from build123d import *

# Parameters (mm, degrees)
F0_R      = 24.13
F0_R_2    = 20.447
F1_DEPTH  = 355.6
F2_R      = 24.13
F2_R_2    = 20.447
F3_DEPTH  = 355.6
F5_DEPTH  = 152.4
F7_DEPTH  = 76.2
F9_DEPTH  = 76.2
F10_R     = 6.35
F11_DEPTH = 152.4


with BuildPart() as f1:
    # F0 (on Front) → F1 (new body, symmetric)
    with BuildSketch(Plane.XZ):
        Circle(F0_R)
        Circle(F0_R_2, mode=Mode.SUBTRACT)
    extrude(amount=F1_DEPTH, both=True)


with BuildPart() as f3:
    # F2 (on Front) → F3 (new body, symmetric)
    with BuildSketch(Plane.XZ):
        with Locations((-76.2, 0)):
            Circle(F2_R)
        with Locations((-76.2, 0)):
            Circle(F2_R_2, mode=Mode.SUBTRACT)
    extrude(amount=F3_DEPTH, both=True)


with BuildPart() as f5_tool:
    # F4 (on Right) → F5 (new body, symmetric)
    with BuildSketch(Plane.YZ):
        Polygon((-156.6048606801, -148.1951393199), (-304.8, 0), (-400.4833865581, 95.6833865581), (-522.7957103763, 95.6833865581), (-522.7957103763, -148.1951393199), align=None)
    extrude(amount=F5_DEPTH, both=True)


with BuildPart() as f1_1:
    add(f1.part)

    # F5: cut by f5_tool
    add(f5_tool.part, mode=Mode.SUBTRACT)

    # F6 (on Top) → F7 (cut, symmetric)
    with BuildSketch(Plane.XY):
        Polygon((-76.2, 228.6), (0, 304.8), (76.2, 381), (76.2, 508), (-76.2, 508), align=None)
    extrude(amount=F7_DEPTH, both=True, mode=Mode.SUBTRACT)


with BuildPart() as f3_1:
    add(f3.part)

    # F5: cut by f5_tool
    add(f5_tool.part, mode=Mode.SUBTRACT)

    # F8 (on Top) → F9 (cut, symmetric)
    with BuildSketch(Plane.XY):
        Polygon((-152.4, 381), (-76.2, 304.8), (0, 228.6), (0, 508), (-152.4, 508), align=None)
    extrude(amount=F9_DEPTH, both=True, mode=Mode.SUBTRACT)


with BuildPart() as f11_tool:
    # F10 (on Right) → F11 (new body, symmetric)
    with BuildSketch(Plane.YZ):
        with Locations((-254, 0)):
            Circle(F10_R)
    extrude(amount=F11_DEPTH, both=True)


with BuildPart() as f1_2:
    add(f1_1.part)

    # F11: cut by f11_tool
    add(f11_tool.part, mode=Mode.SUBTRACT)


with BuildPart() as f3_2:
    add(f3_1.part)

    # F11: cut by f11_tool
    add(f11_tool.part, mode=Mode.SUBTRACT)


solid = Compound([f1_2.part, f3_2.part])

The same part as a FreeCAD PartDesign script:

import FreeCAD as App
import Part
import Sketcher
Q = App.Units.Quantity

doc = App.newDocument("Part")
params = doc.addObject("Spreadsheet::Sheet", "Params")
for row, (alias, value) in enumerate([
    ("sketch1_diameter", "1.9 in"),
    ("sketch1_diameter2", "1.61 in"),
    ("pad1_length", "28 in"),
    ("sketch2_diameter", "1.9 in"),
    ("sketch2_diameter2", "1.61 in"),
    ("pad2_length", "28 in"),
    ("pad3_length", "12 in"),
    ("sketch4_width", "6 in"),
    ("sketch4_height", "5 in"),
    ("sketch4_height2", "11 in"),
    ("pocket1_length", "6 in"),
    ("sketch5_width", "6 in"),
    ("sketch5_height", "11 in"),
    ("sketch5_height2", "5 in"),
    ("pocket2_length", "6 in"),
    ("sketch6_diameter", "0.5 in"),
    ("pad4_length", "12 in"),
], start=1):
    params.set(f"A{row}", alias)
    params.set(f"B{row}", "=" + value)
    params.setAlias(f"B{row}", alias)

body = doc.addObject("PartDesign::Body", "Body")

# Sketch on XZ plane
sketch1 = body.newObject("Sketcher::SketchObject", "Sketch")
sketch1.AttachmentSupport = (doc.getObject("XZ_Plane"), [""])
sketch1.MapMode = "FlatFace"
sketch1.addGeometry(Part.Circle(App.Vector(0, 0, 0), App.Vector(0, 0, 1), 24.13), False)
sketch1.addGeometry(Part.Circle(App.Vector(0, 0, 0), App.Vector(0, 0, 1), 20.447), False)
sketch1.addConstraint(Sketcher.Constraint("Coincident", 0, 3, -1, 1))
sketch1.addConstraint(Sketcher.Constraint("Coincident", 1, 3, -1, 1))
sketch1.addConstraint(Sketcher.Constraint("Diameter", 0, Q("1.9 in")))
sketch1.addConstraint(Sketcher.Constraint("Diameter", 1, Q("1.61 in")))
sketch1.setExpression("Constraints[2]", "Params.sketch1_diameter")
sketch1.setExpression("Constraints[3]", "Params.sketch1_diameter2")
pad1 = body.newObject("PartDesign::Pad", "Pad")
pad1.Profile = sketch1
pad1.setExpression("Length", "Params.pad1_length")
pad1.Midplane = True
body2 = doc.addObject("PartDesign::Body", "Body001")

# Sketch on XZ plane
sketch2 = body2.newObject("Sketcher::SketchObject", "Sketch001")
sketch2.AttachmentSupport = (doc.getObject("XZ_Plane001"), [""])
sketch2.MapMode = "FlatFace"
sketch2.addGeometry(Part.Circle(App.Vector(-76.2, 0, 0), App.Vector(0, 0, 1), 24.13), False)
sketch2.addGeometry(Part.Circle(App.Vector(-76.2, 0, 0), App.Vector(0, 0, 1), 20.447), False)
sketch2.addConstraint(Sketcher.Constraint("Coincident", 1, 3, 0, 3))
sketch2.addConstraint(Sketcher.Constraint("PointOnObject", 0, 3, -1))
sketch2.addConstraint(Sketcher.Constraint("Diameter", 0, Q("1.9 in")))
sketch2.addConstraint(Sketcher.Constraint("Diameter", 1, Q("1.61 in")))
sketch2.addConstraint(Sketcher.Constraint("DistanceX", 0, 3, -1, 1, Q("3 in")))
sketch2.setExpression("Constraints[2]", "Params.sketch2_diameter")
sketch2.setExpression("Constraints[3]", "Params.sketch2_diameter2")
pad2 = body2.newObject("PartDesign::Pad", "Pad001")
pad2.Profile = sketch2
pad2.setExpression("Length", "Params.pad2_length")
pad2.Midplane = True
body3 = doc.addObject("PartDesign::Body", "Body002")

# Sketch on YZ plane
sketch3 = body3.newObject("Sketcher::SketchObject", "Sketch002")
sketch3.AttachmentSupport = (doc.getObject("YZ_Plane002"), [""])
sketch3.MapMode = "FlatFace"
sketch3.addGeometry(Part.LineSegment(App.Vector(-156.604861, -148.195139, 0), App.Vector(-400.483387, 95.683387, 0)), False)
sketch3.addGeometry(Part.LineSegment(App.Vector(-400.483387, 95.683387, 0), App.Vector(-522.79571, 95.683387, 0)), False)
sketch3.addGeometry(Part.LineSegment(App.Vector(-522.79571, 95.683387, 0), App.Vector(-522.79571, -148.195139, 0)), False)
sketch3.addGeometry(Part.LineSegment(App.Vector(-522.79571, -148.195139, 0), App.Vector(-156.604861, -148.195139, 0)), False)
sketch3.addConstraint(Sketcher.Constraint("Coincident", 0, 2, 1, 1))
sketch3.addConstraint(Sketcher.Constraint("Coincident", 1, 2, 2, 1))
sketch3.addConstraint(Sketcher.Constraint("Coincident", 2, 2, 3, 1))
sketch3.addConstraint(Sketcher.Constraint("Coincident", 3, 2, 0, 1))
sketch3.addConstraint(Sketcher.Constraint("Horizontal", 1))
sketch3.addConstraint(Sketcher.Constraint("Vertical", 2))
sketch3.addConstraint(Sketcher.Constraint("Horizontal", 3))
sketch3.addConstraint(Sketcher.Constraint("Angle", 0, Q("135 deg")))
sketch3.addConstraint(Sketcher.Constraint("DistanceX", 3, 1, 3, 2, Q("366.19085 mm")))
sketch3.addConstraint(Sketcher.Constraint("Distance", 0, Q("344.896319 mm")))
sketch3.addConstraint(Sketcher.Constraint("DistanceX", 1, 2, -1, 1, Q("522.79571 mm")))
sketch3.addConstraint(Sketcher.Constraint("DistanceY", 2, 2, -1, 1, Q("148.195139 mm")))
pad3 = body3.newObject("PartDesign::Pad", "Pad002")
pad3.Profile = sketch3
pad3.setExpression("Length", "Params.pad3_length")
pad3.Midplane = True
doc.recompute()

body4 = doc.addObject("PartDesign::Body", "Body003")
body4.BaseFeature = body3
boolean = body.newObject("PartDesign::Boolean", "Boolean")
boolean.Type = "Cut"
boolean.addObjects([body4])
doc.recompute()

# Sketch on XY plane
sketch4 = body.newObject("Sketcher::SketchObject", "Sketch003")
sketch4.AttachmentSupport = (doc.getObject("XY_Plane"), [""])
sketch4.MapMode = "FlatFace"
sketch4.addGeometry(Part.LineSegment(App.Vector(-76.2, 228.6, 0), App.Vector(76.2, 381, 0)), False)
sketch4.addGeometry(Part.LineSegment(App.Vector(76.2, 381, 0), App.Vector(76.2, 508, 0)), False)
sketch4.addGeometry(Part.LineSegment(App.Vector(76.2, 508, 0), App.Vector(-76.2, 508, 0)), False)
sketch4.addGeometry(Part.LineSegment(App.Vector(-76.2, 508, 0), App.Vector(-76.2, 228.6, 0)), False)
sketch4.addConstraint(Sketcher.Constraint("Coincident", 0, 2, 1, 1))
sketch4.addConstraint(Sketcher.Constraint("Coincident", 1, 2, 2, 1))
sketch4.addConstraint(Sketcher.Constraint("Coincident", 2, 2, 3, 1))
sketch4.addConstraint(Sketcher.Constraint("Coincident", 3, 2, 0, 1))
sketch4.addConstraint(Sketcher.Constraint("Vertical", 1))
sketch4.addConstraint(Sketcher.Constraint("Horizontal", 2))
sketch4.addConstraint(Sketcher.Constraint("Vertical", 3))
sketch4.addConstraint(Sketcher.Constraint("DistanceX", 2, 2, 2, 1, Q("6 in")))
sketch4.addConstraint(Sketcher.Constraint("DistanceY", 1, 1, 1, 2, Q("5 in")))
sketch4.addConstraint(Sketcher.Constraint("DistanceY", 3, 2, 3, 1, Q("11 in")))
sketch4.addConstraint(Sketcher.Constraint("DistanceX", -1, 1, 0, 2, Q("3 in")))
sketch4.addConstraint(Sketcher.Constraint("DistanceY", -1, 1, 0, 2, Q("15 in")))
sketch4.setExpression("Constraints[7]", "Params.sketch4_width")
sketch4.setExpression("Constraints[8]", "Params.sketch4_height")
sketch4.setExpression("Constraints[9]", "Params.sketch4_height2")
pocket1 = body.newObject("PartDesign::Pocket", "Pocket")
pocket1.Profile = sketch4
pocket1.setExpression("Length", "Params.pocket1_length")
pocket1.Midplane = True
doc.recompute()

boolean2 = body2.newObject("PartDesign::Boolean", "Boolean001")
boolean2.Type = "Cut"
boolean2.addObjects([body3])

# Sketch on XY plane
sketch5 = body2.newObject("Sketcher::SketchObject", "Sketch004")
sketch5.AttachmentSupport = (doc.getObject("XY_Plane001"), [""])
sketch5.MapMode = "FlatFace"
sketch5.addGeometry(Part.LineSegment(App.Vector(-152.4, 381, 0), App.Vector(0, 228.6, 0)), False)
sketch5.addGeometry(Part.LineSegment(App.Vector(0, 228.6, 0), App.Vector(0, 508, 0)), False)
sketch5.addGeometry(Part.LineSegment(App.Vector(0, 508, 0), App.Vector(-152.4, 508, 0)), False)
sketch5.addGeometry(Part.LineSegment(App.Vector(-152.4, 508, 0), App.Vector(-152.4, 381, 0)), False)
sketch5.addConstraint(Sketcher.Constraint("Coincident", 0, 2, 1, 1))
sketch5.addConstraint(Sketcher.Constraint("Coincident", 1, 2, 2, 1))
sketch5.addConstraint(Sketcher.Constraint("Coincident", 2, 2, 3, 1))
sketch5.addConstraint(Sketcher.Constraint("Coincident", 3, 2, 0, 1))
sketch5.addConstraint(Sketcher.Constraint("Vertical", 1))
sketch5.addConstraint(Sketcher.Constraint("Horizontal", 2))
sketch5.addConstraint(Sketcher.Constraint("Vertical", 3))
sketch5.addConstraint(Sketcher.Constraint("PointOnObject", 0, 2, -2))
sketch5.addConstraint(Sketcher.Constraint("DistanceX", 2, 2, 2, 1, Q("6 in")))
sketch5.addConstraint(Sketcher.Constraint("DistanceY", 1, 1, 1, 2, Q("11 in")))
sketch5.addConstraint(Sketcher.Constraint("DistanceY", 3, 2, 3, 1, Q("5 in")))
sketch5.addConstraint(Sketcher.Constraint("DistanceY", -1, 1, 0, 2, Q("9 in")))
sketch5.setExpression("Constraints[8]", "Params.sketch5_width")
sketch5.setExpression("Constraints[9]", "Params.sketch5_height")
sketch5.setExpression("Constraints[10]", "Params.sketch5_height2")
pocket2 = body2.newObject("PartDesign::Pocket", "Pocket001")
pocket2.Profile = sketch5
pocket2.setExpression("Length", "Params.pocket2_length")
pocket2.Midplane = True
body5 = doc.addObject("PartDesign::Body", "Body004")

# Sketch on YZ plane
sketch6 = body5.newObject("Sketcher::SketchObject", "Sketch005")
sketch6.AttachmentSupport = (doc.getObject("YZ_Plane004"), [""])
sketch6.MapMode = "FlatFace"
sketch6.addGeometry(Part.Circle(App.Vector(-254, 0, 0), App.Vector(0, 0, 1), 6.35), False)
sketch6.addConstraint(Sketcher.Constraint("PointOnObject", 0, 3, -1))
sketch6.addConstraint(Sketcher.Constraint("Diameter", 0, Q("0.5 in")))
sketch6.addConstraint(Sketcher.Constraint("DistanceX", 0, 3, -1, 1, Q("10 in")))
sketch6.setExpression("Constraints[1]", "Params.sketch6_diameter")
pad4 = body5.newObject("PartDesign::Pad", "Pad003")
pad4.Profile = sketch6
pad4.setExpression("Length", "Params.pad4_length")
pad4.Midplane = True
doc.recompute()

body6 = doc.addObject("PartDesign::Body", "Body005")
body6.BaseFeature = body5
boolean3 = body.newObject("PartDesign::Boolean", "Boolean002")
boolean3.Type = "Cut"
boolean3.addObjects([body6])
doc.recompute()

boolean4 = body2.newObject("PartDesign::Boolean", "Boolean003")
boolean4.Type = "Cut"
boolean4.addObjects([body5])

doc.recompute()
